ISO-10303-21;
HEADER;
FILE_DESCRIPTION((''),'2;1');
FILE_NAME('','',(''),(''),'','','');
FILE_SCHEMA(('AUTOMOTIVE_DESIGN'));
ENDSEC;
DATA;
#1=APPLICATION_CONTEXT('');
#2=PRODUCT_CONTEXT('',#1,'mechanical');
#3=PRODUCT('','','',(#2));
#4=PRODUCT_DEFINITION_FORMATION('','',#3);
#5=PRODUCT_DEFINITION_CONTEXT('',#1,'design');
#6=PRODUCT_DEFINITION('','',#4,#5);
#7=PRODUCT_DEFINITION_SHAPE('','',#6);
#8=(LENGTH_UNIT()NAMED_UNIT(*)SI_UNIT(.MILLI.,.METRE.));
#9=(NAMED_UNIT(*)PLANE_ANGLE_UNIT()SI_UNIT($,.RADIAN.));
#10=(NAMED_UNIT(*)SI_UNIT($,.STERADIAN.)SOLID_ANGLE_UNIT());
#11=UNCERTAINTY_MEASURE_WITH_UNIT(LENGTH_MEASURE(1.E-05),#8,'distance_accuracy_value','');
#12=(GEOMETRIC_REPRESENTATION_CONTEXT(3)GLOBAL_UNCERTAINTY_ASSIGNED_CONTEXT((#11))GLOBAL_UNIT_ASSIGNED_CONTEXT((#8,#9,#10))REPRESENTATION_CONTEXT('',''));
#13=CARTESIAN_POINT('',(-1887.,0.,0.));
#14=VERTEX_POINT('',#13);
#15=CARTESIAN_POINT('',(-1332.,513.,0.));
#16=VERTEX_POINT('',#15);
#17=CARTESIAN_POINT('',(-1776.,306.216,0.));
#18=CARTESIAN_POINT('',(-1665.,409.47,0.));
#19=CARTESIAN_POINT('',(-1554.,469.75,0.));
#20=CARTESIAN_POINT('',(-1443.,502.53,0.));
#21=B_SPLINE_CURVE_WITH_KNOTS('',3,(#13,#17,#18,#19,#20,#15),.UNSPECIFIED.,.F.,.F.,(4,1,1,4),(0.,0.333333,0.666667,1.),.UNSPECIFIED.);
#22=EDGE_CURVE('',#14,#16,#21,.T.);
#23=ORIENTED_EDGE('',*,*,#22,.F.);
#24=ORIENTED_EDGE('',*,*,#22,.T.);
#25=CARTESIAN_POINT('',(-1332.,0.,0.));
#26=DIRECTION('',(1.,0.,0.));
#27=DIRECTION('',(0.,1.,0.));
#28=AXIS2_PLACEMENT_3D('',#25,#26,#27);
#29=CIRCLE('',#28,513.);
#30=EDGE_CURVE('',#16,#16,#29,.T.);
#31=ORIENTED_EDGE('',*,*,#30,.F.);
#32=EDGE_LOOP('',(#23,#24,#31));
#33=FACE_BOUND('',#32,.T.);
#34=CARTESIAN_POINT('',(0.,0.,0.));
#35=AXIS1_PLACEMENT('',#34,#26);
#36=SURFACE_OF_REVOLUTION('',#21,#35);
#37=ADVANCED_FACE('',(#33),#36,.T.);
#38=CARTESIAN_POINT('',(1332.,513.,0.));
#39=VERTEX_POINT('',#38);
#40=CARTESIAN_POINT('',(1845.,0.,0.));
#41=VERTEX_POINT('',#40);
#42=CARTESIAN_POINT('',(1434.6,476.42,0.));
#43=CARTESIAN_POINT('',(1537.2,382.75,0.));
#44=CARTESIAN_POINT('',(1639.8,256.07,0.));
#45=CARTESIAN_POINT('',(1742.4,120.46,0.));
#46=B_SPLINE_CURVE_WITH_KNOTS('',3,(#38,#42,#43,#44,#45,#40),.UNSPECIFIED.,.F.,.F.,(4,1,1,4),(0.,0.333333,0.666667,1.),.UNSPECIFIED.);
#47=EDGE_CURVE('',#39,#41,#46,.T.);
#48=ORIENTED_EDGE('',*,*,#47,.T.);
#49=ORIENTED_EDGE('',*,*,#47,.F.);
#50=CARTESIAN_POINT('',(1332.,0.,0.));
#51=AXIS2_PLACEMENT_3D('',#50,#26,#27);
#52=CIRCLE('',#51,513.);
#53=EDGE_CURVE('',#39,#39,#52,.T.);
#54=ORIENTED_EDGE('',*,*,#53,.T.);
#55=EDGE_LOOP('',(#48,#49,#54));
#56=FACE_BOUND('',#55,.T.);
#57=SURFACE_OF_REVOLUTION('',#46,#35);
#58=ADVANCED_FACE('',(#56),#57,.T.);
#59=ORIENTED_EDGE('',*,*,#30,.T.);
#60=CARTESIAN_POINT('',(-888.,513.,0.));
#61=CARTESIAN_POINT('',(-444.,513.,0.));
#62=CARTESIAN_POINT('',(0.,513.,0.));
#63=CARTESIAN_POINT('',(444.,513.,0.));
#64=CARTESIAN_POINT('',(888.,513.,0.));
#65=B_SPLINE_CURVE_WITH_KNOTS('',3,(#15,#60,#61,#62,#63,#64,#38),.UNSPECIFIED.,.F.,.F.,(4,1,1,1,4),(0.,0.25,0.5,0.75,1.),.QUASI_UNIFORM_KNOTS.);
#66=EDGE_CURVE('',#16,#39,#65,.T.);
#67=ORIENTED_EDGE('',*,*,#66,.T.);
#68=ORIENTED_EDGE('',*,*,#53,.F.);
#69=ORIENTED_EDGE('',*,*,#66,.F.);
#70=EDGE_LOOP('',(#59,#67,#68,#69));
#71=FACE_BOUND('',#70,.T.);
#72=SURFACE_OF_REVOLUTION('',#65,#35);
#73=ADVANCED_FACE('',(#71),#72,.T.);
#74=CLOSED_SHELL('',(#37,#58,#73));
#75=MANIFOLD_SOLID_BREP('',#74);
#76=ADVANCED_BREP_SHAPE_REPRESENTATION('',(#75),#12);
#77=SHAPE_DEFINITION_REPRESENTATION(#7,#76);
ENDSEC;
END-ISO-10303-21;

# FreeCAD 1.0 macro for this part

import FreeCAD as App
import Part
import Sketcher
from FreeCAD import Vector

doc = App.newDocument("Part")
body = doc.addObject("PartDesign::Body", "Body")

# Sketch on XY plane
sketch1 = doc.addObject("Sketcher::SketchObject", "Sketch")
body.addObject(sketch1)
sketch1.AttachmentSupport = (doc.XY_Plane, [""])
sketch1.MapMode = "FlatFace"
sketch1.addGeometry(Part.BSplineCurve([Vector(1332, 513, 0), Vector(1434.6, 476.42, 0), Vector(1537.2, 382.75, 0), Vector(1639.8, 256.07, 0), Vector(1742.4, 120.46, 0), Vector(1845, 0, 0)], [4, 1, 1, 4], [0, 0.333333, 0.666667, 1], False, 3, [1, 1, 1, 1, 1, 1], False), False)
sketch1.addGeometry(Part.BSplineCurve([Vector(-1332, 513, 0), Vector(-888, 513, 0), Vector(-444, 513, 0), Vector(0, 513, 0), Vector(444, 513, 0), Vector(888, 513, 0), Vector(1332, 513, 0)], [4, 1, 1, 1, 4], [0, 0.25, 0.5, 0.75, 1], False, 3, [1, 1, 1, 1, 1, 1, 1], False), False)
sketch1.addGeometry(Part.BSplineCurve([Vector(-1887, 0, 0), Vector(-1776, 306.216, 0), Vector(-1665, 409.47, 0), Vector(-1554, 469.75, 0), Vector(-1443, 502.53, 0), Vector(-1332, 513, 0)], [4, 1, 1, 4], [0, 0.333333, 0.666667, 1], False, 3, [1, 1, 1, 1, 1, 1], False), False)
sketch1.addGeometry(Part.LineSegment(Vector(-1887, 0, 0), Vector(1845, 0, 0)), False)
sketch1.addConstraint(Sketcher.Constraint("Block", 0))
sketch1.addConstraint(Sketcher.Constraint("Block", 1))
sketch1.addConstraint(Sketcher.Constraint("Block", 2))
sketch1.addConstraint(Sketcher.Constraint("Coincident", 2, 1, 3, 1))
sketch1.addConstraint(Sketcher.Constraint("Coincident", 3, 2, 0, 2))
revolution = doc.addObject("PartDesign::Revolution", "Revolution")
body.addObject(revolution)
revolution.Profile = sketch1
revolution.ReferenceAxis = (sketch1, ["H_Axis"])
revolution.Angle = 360

doc.recompute()
